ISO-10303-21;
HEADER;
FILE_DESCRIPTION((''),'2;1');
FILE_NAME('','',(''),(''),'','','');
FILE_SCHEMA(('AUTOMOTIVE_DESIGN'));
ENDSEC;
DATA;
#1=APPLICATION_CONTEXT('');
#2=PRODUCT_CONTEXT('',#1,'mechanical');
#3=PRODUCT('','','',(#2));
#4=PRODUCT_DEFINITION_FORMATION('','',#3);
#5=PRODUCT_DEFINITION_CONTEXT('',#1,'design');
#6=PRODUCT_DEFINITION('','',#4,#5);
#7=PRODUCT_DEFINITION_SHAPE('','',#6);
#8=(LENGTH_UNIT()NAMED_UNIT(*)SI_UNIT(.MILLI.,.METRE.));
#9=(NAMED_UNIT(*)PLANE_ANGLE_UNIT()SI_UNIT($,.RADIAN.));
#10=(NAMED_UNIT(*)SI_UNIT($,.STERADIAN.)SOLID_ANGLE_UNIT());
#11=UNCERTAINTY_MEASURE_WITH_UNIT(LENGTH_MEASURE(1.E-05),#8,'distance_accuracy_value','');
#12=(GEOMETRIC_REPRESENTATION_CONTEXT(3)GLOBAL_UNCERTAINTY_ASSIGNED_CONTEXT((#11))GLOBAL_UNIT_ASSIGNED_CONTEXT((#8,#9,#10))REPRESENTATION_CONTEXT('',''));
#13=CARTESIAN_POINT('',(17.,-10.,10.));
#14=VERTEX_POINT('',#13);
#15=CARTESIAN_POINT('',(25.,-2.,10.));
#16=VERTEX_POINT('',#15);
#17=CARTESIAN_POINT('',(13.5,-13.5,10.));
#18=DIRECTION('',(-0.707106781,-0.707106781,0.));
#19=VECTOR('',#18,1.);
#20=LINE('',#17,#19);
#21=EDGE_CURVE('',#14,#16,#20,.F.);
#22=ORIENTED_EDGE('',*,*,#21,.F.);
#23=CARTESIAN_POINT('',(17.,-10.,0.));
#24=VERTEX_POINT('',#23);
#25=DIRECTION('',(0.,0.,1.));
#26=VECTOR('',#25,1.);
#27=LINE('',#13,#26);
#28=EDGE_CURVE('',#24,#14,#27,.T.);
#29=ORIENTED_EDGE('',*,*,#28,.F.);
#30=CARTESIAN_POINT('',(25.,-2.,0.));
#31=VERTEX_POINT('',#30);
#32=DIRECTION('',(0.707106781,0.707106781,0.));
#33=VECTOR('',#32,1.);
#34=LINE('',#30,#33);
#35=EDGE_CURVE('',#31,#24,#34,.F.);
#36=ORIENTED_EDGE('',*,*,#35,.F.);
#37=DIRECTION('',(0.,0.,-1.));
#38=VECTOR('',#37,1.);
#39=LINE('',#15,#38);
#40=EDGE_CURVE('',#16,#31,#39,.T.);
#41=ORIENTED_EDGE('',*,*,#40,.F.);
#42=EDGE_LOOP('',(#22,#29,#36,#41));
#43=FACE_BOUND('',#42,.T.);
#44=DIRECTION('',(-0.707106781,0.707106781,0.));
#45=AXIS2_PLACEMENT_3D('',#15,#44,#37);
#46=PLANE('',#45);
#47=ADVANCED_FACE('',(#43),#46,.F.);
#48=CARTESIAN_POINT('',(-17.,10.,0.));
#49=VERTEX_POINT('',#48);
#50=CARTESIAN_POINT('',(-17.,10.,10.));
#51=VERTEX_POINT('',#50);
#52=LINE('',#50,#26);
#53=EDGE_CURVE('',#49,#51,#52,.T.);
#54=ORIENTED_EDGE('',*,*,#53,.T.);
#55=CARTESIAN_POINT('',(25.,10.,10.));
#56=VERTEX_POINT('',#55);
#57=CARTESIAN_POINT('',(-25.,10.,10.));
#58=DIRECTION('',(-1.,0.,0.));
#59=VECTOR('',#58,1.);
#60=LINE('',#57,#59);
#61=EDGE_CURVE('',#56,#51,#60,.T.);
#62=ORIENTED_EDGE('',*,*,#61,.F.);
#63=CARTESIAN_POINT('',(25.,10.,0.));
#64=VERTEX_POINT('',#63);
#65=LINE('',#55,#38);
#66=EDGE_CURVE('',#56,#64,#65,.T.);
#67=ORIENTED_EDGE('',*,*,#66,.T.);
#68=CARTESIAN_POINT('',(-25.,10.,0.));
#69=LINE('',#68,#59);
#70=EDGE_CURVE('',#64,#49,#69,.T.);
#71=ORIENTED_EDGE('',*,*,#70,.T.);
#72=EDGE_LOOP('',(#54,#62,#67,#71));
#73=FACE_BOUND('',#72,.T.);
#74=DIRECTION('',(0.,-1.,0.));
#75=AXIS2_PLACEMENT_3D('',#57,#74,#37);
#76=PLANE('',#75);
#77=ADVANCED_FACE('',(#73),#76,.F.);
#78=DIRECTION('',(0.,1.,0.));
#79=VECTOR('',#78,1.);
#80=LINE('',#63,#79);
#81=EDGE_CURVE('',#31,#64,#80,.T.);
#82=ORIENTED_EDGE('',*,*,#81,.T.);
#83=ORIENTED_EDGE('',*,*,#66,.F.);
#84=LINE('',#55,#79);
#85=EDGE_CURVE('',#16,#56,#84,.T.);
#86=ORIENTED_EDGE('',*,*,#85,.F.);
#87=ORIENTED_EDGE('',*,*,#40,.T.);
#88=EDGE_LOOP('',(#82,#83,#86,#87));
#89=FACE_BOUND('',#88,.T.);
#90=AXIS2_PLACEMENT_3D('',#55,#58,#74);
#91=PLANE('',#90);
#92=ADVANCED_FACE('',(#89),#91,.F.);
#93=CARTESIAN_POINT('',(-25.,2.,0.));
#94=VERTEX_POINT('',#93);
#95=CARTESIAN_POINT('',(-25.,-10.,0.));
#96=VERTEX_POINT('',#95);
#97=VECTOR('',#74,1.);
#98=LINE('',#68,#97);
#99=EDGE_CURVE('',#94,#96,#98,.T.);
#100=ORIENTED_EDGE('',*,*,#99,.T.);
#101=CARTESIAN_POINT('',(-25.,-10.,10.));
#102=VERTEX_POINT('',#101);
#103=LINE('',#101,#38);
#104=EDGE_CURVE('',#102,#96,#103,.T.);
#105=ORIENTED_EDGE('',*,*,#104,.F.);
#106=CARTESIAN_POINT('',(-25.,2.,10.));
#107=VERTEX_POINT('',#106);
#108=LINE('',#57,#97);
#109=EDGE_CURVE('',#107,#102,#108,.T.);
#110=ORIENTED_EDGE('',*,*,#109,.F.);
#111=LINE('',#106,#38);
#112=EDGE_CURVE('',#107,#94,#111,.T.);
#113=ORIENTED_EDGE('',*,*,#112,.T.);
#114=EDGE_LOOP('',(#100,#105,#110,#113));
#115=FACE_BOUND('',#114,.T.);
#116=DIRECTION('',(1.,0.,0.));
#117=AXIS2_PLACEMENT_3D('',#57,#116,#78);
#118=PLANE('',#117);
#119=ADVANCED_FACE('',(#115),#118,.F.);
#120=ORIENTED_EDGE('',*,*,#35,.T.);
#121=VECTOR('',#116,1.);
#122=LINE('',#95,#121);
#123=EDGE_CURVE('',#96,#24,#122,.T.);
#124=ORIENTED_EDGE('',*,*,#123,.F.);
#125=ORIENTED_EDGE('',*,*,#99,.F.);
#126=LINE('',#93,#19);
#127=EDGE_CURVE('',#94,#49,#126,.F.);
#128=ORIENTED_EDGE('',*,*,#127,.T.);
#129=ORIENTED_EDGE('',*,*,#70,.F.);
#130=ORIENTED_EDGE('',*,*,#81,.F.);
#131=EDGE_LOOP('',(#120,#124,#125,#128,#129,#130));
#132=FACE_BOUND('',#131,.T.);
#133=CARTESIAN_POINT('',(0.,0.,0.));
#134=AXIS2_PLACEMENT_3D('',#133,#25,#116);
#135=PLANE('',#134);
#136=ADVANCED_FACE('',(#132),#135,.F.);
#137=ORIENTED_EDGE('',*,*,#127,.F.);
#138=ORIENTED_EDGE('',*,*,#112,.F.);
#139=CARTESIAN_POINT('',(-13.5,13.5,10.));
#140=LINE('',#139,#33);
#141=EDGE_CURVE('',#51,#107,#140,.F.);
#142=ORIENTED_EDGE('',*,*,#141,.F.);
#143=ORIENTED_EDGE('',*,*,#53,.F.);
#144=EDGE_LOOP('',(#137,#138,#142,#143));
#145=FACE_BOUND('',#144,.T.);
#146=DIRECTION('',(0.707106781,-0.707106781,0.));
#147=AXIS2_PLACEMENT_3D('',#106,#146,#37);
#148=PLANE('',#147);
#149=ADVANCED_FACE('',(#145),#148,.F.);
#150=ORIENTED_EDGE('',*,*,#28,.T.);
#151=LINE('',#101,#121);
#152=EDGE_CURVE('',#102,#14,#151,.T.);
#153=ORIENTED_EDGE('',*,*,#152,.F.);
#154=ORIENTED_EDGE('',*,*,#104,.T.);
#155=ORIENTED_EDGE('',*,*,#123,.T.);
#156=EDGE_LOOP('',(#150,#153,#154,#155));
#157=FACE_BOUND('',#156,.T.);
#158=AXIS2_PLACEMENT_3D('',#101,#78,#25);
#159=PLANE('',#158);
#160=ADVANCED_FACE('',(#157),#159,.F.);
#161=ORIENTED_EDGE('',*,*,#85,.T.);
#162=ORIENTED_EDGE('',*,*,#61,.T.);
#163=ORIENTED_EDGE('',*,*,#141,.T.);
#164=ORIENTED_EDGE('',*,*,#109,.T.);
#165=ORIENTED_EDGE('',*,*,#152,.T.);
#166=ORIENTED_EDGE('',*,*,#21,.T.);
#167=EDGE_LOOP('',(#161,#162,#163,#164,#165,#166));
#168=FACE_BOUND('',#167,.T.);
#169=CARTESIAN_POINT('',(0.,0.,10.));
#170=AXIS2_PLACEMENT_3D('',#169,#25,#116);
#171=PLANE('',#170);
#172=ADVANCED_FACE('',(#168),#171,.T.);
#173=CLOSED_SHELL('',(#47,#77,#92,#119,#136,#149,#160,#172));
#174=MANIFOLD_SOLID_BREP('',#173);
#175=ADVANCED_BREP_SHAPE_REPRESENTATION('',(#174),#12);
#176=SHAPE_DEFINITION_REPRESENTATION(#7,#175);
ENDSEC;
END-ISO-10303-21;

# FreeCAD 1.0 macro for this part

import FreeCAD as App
import Part
import Sketcher

V = App.Vector
Q = App.Units.Quantity


def edges_at(feature, points):
    """Names of the edges that pass closest to the given points."""
    edges = feature.Shape.Edges
    near = lambda p: min(range(len(edges)), key=lambda i: edges[i].distToShape(Part.Vertex(*p))[0])
    return sorted({f"Edge{near(p) + 1}" for p in points})

doc = App.newDocument("Part")
body = doc.addObject("PartDesign::Body", "Body")

# Sketch on XY plane
sketch1 = body.newObject("Sketcher::SketchObject", "Sketch")
sketch1.AttachmentSupport = (doc.getObject("XY_Plane"), [""])
sketch1.MapMode = "FlatFace"
sketch1.addGeometry([
    Part.LineSegment(V(-25, 10, 0), V(-25, -10, 0)),
    Part.LineSegment(V(-25, -10, 0), V(25, -10, 0)),
    Part.LineSegment(V(25, -10, 0), V(25, 10, 0)),
    Part.LineSegment(V(25, 10, 0), V(-25, 10, 0)),
], False)
sketch1.addConstraint([
    Sketcher.Constraint("Coincident", 0, 2, 1, 1),
    Sketcher.Constraint("Coincident", 1, 2, 2, 1),
    Sketcher.Constraint("Coincident", 2, 2, 3, 1),
    Sketcher.Constraint("Coincident", 3, 2, 0, 1),
    Sketcher.Constraint("Vertical", 0),
    Sketcher.Constraint("Horizontal", 1),
    Sketcher.Constraint("Vertical", 2),
    Sketcher.Constraint("Horizontal", 3),
    Sketcher.Constraint("Symmetric", 0, 2, 2, 2, -1, 1),
    Sketcher.Constraint("DistanceX", 1, 1, 1, 2, Q("50 mm")),
    Sketcher.Constraint("DistanceY", 0, 2, 0, 1, Q("20 mm")),
])
pad1 = body.newObject("PartDesign::Pad", "Pad")
pad1.Profile = sketch1
pad1.Length = 10
doc.recompute()

chamfer = body.newObject("PartDesign::Chamfer", "Chamfer")
chamfer.Base = (pad1, edges_at(pad1, [(25, -10, 5), (-25, 10, 5)]))
chamfer.Size = 8

doc.recompute()
